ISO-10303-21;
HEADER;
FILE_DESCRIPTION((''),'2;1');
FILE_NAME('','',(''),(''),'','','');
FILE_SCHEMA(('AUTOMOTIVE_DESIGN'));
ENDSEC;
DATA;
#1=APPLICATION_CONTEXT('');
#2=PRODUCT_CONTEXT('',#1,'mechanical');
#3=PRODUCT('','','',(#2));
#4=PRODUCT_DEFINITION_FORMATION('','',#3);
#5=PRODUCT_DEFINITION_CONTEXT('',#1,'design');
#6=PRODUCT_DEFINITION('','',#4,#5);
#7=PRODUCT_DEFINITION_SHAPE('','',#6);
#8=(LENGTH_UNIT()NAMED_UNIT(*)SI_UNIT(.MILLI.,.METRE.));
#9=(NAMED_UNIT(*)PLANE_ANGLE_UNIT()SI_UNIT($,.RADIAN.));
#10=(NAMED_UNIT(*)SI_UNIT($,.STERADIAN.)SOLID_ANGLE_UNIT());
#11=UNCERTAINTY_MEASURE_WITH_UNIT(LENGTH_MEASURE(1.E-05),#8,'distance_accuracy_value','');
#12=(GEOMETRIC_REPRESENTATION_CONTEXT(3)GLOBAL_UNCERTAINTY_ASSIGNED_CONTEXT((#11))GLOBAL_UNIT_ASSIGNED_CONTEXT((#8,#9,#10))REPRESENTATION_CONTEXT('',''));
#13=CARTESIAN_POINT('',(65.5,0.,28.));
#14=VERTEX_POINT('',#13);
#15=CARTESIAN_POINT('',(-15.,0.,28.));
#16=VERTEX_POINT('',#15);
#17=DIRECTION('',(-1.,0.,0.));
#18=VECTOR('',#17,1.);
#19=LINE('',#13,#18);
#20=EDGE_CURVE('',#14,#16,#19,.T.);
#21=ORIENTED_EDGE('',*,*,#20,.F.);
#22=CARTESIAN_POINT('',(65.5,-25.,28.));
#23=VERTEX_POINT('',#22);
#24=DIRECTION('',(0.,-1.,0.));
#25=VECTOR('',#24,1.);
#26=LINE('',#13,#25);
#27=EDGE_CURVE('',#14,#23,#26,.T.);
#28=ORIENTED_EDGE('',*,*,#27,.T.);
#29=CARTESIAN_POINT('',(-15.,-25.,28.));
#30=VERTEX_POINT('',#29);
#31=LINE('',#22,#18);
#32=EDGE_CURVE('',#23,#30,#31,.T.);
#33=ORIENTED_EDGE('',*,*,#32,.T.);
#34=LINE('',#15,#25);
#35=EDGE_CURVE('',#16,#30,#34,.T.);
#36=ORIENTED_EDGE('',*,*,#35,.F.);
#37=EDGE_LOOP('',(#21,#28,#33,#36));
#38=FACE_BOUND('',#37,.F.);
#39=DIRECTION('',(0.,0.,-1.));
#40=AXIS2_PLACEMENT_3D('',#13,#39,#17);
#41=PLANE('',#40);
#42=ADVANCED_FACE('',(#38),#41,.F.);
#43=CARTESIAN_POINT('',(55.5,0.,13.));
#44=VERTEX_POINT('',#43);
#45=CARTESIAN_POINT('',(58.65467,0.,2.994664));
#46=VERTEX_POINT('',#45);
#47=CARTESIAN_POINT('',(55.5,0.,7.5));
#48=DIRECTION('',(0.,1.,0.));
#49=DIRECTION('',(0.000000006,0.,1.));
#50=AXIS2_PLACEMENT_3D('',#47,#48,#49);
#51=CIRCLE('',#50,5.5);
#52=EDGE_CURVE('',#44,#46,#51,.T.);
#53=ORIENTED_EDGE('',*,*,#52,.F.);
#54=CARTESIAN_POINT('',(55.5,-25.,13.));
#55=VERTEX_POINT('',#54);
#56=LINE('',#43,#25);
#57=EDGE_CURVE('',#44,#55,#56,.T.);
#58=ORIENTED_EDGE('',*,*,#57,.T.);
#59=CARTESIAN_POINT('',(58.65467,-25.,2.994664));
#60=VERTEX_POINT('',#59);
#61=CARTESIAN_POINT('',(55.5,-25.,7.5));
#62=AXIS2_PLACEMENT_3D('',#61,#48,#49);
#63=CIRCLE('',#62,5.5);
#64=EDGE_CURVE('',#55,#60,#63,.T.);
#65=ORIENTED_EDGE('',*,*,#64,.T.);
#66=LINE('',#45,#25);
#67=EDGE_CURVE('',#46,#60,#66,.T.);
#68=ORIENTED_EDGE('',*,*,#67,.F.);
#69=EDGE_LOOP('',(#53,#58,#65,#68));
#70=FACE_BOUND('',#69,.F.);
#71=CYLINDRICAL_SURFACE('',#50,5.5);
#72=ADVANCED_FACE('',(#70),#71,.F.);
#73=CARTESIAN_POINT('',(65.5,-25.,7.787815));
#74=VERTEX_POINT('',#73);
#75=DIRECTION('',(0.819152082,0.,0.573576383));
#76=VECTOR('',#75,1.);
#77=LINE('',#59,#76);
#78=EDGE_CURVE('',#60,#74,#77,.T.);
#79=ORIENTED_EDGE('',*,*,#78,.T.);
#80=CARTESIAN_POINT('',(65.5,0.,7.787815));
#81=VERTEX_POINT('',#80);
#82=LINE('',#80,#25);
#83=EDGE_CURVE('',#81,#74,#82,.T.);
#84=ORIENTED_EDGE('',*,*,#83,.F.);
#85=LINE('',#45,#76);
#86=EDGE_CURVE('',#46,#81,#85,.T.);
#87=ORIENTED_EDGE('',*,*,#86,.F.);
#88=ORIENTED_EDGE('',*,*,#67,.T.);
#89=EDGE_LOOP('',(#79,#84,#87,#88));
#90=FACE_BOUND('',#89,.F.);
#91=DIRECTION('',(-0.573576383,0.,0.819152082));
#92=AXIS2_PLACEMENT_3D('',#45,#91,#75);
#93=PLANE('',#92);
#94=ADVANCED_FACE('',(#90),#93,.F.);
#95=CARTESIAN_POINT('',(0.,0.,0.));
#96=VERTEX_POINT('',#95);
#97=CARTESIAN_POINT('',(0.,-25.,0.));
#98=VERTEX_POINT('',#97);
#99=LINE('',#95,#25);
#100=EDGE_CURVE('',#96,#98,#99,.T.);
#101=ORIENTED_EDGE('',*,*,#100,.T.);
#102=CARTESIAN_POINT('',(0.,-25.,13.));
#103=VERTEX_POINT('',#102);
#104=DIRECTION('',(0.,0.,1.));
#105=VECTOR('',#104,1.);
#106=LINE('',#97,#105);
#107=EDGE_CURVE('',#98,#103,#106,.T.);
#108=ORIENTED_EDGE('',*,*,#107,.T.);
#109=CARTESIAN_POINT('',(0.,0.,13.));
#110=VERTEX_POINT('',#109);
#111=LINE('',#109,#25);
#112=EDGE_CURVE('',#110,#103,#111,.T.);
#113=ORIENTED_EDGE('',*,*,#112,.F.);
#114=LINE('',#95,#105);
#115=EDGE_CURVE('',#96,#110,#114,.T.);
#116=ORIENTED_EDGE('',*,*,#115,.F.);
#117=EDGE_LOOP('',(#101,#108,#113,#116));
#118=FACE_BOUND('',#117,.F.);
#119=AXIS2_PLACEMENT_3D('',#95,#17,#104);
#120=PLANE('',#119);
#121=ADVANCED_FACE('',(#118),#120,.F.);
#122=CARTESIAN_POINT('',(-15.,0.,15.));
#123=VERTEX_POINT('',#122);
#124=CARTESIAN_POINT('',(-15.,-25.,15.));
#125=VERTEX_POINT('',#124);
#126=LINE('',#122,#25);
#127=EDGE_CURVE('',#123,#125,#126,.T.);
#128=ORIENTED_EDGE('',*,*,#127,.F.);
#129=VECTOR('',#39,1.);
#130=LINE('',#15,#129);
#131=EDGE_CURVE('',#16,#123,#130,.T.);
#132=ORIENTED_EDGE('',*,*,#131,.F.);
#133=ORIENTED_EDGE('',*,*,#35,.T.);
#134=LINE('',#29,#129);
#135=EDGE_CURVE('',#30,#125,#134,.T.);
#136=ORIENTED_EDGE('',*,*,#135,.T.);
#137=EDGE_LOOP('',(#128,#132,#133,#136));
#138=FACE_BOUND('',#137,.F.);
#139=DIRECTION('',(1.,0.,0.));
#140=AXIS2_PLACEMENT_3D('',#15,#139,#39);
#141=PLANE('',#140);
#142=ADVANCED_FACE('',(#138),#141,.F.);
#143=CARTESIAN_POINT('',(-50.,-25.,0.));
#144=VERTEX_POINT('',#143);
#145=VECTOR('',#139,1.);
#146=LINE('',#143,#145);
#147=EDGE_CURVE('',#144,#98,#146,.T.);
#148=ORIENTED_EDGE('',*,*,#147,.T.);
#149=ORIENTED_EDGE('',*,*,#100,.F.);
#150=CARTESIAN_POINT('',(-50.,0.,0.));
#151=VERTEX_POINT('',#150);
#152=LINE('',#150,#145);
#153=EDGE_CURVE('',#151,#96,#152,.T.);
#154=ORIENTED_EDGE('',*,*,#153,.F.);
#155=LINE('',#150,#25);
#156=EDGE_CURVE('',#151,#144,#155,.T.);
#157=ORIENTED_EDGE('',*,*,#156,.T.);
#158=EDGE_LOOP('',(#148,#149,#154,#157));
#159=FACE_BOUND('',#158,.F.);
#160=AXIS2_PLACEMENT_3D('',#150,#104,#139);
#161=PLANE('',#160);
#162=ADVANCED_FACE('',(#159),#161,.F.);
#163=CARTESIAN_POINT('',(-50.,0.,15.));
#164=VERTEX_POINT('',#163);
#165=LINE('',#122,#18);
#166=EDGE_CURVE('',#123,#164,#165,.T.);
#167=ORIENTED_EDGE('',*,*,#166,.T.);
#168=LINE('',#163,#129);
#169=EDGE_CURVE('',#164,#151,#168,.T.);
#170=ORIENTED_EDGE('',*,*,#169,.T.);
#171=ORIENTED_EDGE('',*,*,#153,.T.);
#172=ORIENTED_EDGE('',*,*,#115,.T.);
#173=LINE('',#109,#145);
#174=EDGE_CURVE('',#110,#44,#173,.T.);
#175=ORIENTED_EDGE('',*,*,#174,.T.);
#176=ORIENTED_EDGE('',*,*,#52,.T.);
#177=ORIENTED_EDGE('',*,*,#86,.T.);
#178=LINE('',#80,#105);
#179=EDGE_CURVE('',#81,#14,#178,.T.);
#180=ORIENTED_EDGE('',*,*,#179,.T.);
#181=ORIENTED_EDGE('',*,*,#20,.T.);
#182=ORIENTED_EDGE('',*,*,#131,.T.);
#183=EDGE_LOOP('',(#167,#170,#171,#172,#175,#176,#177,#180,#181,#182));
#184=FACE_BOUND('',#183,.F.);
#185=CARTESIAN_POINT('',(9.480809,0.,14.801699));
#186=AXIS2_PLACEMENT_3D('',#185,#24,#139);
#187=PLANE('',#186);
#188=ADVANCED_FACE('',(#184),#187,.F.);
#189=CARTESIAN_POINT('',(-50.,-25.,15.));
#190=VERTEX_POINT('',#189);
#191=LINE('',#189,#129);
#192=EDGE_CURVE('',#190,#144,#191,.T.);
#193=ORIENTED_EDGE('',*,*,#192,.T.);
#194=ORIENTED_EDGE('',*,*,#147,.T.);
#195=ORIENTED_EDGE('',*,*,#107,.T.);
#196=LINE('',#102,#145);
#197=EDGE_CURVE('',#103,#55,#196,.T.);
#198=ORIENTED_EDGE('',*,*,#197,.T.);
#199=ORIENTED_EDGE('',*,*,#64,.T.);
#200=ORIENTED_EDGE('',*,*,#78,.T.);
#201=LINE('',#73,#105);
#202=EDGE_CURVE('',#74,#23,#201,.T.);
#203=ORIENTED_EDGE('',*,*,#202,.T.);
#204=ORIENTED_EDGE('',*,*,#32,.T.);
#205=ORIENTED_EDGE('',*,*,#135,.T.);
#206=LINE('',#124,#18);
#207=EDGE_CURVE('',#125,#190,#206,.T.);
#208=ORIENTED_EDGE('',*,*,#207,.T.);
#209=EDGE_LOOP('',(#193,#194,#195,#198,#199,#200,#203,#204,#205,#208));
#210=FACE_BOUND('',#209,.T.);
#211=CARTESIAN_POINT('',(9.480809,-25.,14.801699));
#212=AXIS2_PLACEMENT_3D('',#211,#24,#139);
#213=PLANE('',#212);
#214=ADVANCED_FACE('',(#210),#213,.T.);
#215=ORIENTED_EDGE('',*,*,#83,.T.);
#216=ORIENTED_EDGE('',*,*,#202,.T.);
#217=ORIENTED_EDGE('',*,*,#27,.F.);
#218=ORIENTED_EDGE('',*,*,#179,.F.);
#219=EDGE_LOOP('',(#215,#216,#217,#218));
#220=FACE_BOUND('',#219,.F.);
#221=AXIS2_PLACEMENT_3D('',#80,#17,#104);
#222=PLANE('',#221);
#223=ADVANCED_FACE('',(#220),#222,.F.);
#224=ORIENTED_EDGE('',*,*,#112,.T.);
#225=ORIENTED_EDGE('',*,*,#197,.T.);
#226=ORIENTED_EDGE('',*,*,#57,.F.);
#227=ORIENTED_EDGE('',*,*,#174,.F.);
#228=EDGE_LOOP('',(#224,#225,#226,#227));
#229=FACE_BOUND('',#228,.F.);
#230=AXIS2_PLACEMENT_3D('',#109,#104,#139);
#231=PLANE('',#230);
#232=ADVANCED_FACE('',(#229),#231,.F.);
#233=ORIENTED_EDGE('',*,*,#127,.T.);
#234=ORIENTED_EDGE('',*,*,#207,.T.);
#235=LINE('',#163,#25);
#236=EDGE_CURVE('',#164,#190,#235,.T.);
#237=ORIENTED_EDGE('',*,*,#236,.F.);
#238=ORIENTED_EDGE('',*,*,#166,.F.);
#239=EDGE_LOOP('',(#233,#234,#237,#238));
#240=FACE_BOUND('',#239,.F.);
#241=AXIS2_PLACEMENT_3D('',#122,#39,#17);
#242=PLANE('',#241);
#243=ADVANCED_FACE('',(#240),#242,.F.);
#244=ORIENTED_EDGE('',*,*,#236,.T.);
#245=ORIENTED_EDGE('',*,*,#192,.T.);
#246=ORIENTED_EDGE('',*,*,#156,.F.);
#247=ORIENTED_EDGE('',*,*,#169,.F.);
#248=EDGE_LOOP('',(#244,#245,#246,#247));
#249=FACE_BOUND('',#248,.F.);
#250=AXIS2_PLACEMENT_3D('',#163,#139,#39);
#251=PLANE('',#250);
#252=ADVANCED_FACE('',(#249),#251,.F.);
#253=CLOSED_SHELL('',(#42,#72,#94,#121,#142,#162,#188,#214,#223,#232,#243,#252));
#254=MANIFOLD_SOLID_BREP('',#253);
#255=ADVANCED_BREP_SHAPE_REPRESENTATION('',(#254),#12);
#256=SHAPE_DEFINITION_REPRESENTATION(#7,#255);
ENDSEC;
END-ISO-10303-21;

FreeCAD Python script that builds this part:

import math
import FreeCAD as App
import Part
import Sketcher
Q = App.Units.Quantity

doc = App.newDocument("Part")
body = doc.addObject("PartDesign::Body", "Body")

# Sketch on XZ plane
sketch1 = body.newObject("Sketcher::SketchObject", "Sketch")
sketch1.AttachmentSupport = (doc.getObject("XZ_Plane"), [""])
sketch1.MapMode = "FlatFace"
sketch1.addGeometry(Part.LineSegment(App.Vector(-50, 15, 0), App.Vector(-50, 0, 0)), False)
sketch1.addGeometry(Part.LineSegment(App.Vector(-50, 0, 0), App.Vector(0, 0, 0)), False)
sketch1.addGeometry(Part.LineSegment(App.Vector(0, 0, 0), App.Vector(0, 13, 0)), False)
sketch1.addGeometry(Part.LineSegment(App.Vector(0, 13, 0), App.Vector(56, 13, 0)), False)
sketch1.addGeometry(Part.ArcOfCircle(Part.Circle(App.Vector(55, 8, 0), App.Vector(0, 0, 1), 5), math.radians(-55), math.radians(90)), False)
sketch1.addGeometry(Part.LineSegment(App.Vector(59, 3, 0), App.Vector(66, 8, 0)), False)
sketch1.addGeometry(Part.LineSegment(App.Vector(66, 8, 0), App.Vector(66, 28, 0)), False)
sketch1.addGeometry(Part.LineSegment(App.Vector(66, 28, 0), App.Vector(-15, 28, 0)), False)
sketch1.addGeometry(Part.LineSegment(App.Vector(-15, 28, 0), App.Vector(-15, 15, 0)), False)
sketch1.addGeometry(Part.LineSegment(App.Vector(-15, 15, 0), App.Vector(-50, 15, 0)), False)
sketch1.addConstraint(Sketcher.Constraint("Coincident", 0, 2, 1, 1))
sketch1.addConstraint(Sketcher.Constraint("Coincident", 1, 2, 2, 1))
sketch1.addConstraint(Sketcher.Constraint("Coincident", 2, 2, 3, 1))
sketch1.addConstraint(Sketcher.Constraint("Tangent", 3, 2, 4, 2))
sketch1.addConstraint(Sketcher.Constraint("Tangent", 4, 1, 5, 1))
sketch1.addConstraint(Sketcher.Constraint("Coincident", 5, 2, 6, 1))
sketch1.addConstraint(Sketcher.Constraint("Coincident", 6, 2, 7, 1))
sketch1.addConstraint(Sketcher.Constraint("Coincident", 7, 2, 8, 1))
sketch1.addConstraint(Sketcher.Constraint("Coincident", 8, 2, 9, 1))
sketch1.addConstraint(Sketcher.Constraint("Coincident", 9, 2, 0, 1))
sketch1.addConstraint(Sketcher.Constraint("Vertical", 0))
sketch1.addConstraint(Sketcher.Constraint("Horizontal", 1))
sketch1.addConstraint(Sketcher.Constraint("Vertical", 2))
sketch1.addConstraint(Sketcher.Constraint("Horizontal", 3))
sketch1.addConstraint(Sketcher.Constraint("Vertical", 6))
sketch1.addConstraint(Sketcher.Constraint("Horizontal", 7))
sketch1.addConstraint(Sketcher.Constraint("Vertical", 8))
sketch1.addConstraint(Sketcher.Constraint("Horizontal", 9))
sketch1.addConstraint(Sketcher.Constraint("Coincident", 1, 2, -1, 1))
sketch1.addConstraint(Sketcher.Constraint("Equal", 2, 8))
sketch1.addConstraint(Sketcher.Constraint("Radius", 4, Q("5.5 mm")))
sketch1.addConstraint(Sketcher.Constraint("DistanceX", 1, 1, 1, 2, Q("50 mm")))
sketch1.addConstraint(Sketcher.Constraint("DistanceX", 9, 2, 9, 1, Q("35 mm")))
sketch1.addConstraint(Sketcher.Constraint("DistanceY", 0, 2, 0, 1, Q("15 mm")))
sketch1.addConstraint(Sketcher.Constraint("DistanceY", 2, 1, 2, 2, Q("13 mm")))
sketch1.addConstraint(Sketcher.Constraint("Angle", 5, Q("34.999996 deg")))
sketch1.addConstraint(Sketcher.Constraint("DistanceX", 3, 1, 3, 2, Q("55.5 mm")))
sketch1.addConstraint(Sketcher.Constraint("DistanceX", 7, 2, 7, 1, Q("80.5 mm")))
pad1 = body.newObject("PartDesign::Pad", "Pad")
pad1.Profile = sketch1
pad1.Length = 25

doc.recompute()
